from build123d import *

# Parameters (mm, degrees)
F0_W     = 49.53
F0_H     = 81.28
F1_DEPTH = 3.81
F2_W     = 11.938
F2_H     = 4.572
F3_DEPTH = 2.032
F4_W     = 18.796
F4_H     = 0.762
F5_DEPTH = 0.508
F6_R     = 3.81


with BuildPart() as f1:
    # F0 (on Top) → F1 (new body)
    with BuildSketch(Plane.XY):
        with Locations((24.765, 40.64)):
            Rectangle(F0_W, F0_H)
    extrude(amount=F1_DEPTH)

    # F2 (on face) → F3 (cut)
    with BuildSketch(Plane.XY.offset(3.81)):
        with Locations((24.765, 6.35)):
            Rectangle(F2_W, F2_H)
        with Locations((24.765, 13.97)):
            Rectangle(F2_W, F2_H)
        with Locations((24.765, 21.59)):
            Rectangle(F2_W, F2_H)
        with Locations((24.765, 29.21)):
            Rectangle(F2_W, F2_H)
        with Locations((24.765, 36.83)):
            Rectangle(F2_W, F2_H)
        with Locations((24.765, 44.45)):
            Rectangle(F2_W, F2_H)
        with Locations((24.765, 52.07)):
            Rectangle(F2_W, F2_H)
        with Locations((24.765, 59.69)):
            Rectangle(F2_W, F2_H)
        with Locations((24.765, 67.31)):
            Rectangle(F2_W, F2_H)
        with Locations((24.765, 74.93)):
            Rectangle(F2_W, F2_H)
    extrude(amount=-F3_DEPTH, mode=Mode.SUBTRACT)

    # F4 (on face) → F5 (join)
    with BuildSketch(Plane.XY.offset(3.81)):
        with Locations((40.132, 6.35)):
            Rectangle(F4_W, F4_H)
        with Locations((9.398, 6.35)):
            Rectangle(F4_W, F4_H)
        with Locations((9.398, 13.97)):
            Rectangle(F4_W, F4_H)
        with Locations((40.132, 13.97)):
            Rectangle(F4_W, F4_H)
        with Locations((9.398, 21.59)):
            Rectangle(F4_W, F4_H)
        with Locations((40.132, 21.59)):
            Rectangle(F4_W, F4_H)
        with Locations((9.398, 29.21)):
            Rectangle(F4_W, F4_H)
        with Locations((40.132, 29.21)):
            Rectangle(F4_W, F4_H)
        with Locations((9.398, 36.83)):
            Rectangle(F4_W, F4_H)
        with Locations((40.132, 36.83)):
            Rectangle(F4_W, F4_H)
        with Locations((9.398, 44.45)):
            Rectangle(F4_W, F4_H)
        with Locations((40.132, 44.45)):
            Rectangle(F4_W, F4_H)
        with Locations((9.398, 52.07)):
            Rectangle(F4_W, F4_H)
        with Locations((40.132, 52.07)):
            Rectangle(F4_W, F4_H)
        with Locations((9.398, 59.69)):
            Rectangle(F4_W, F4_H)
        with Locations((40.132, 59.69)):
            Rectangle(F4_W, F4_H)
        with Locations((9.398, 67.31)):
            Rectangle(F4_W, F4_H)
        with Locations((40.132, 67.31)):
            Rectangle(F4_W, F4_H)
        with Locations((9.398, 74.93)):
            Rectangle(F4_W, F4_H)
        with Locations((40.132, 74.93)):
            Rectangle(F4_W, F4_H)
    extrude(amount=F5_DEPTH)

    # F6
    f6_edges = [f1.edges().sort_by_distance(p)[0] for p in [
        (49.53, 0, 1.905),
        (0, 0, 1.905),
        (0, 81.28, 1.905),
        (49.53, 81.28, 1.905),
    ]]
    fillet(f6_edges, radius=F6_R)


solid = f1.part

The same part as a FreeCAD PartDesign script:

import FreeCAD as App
import Part
import Sketcher

V = App.Vector
Q = App.Units.Quantity


def edges_at(feature, points):
    """Names of the edges that pass closest to the given points."""
    edges = feature.Shape.Edges
    near = lambda p: min(range(len(edges)), key=lambda i: edges[i].distToShape(Part.Vertex(*p))[0])
    return sorted({f"Edge{near(p) + 1}" for p in points})


def add_polygon(sketch, points):
    """Adds a closed chain of lines whose ends are joined by coincident constraints."""
    first, n = sketch.GeometryCount, len(points)
    for a, b in zip(points, points[1:] + points[:1]):
        sketch.addGeometry(Part.LineSegment(App.Vector(*a, 0), App.Vector(*b, 0)), False)
    for i in range(n):
        sketch.addConstraint(Sketcher.Constraint("Coincident", first + i, 2, first + (i + 1) % n, 1))

doc = App.newDocument("Part")
body = doc.addObject("PartDesign::Body", "Body")

# Sketch on XY plane
sketch1 = doc.addObject("Sketcher::SketchObject", "Sketch")
body.addObject(sketch1)
sketch1.AttachmentSupport = (doc.XY_Plane, [""])
sketch1.MapMode = "FlatFace"
add_polygon(sketch1, [(0, 81), (0, 0), (50, 0), (50, 81)])  # lines 0-3
sketch1.addConstraint([
    Sketcher.Constraint("Vertical", 0),
    Sketcher.Constraint("Horizontal", 1),
    Sketcher.Constraint("Vertical", 2),
    Sketcher.Constraint("Horizontal", 3),
    Sketcher.Constraint("Coincident", 0, 2, -1, 1),
    Sketcher.Constraint("DistanceY", 0, 2, 0, 1, Q("3.2 in")),
    Sketcher.Constraint("DistanceX", 1, 1, 1, 2, Q("1.95 in")),
])
pad1 = doc.addObject("PartDesign::Pad", "Pad")
body.addObject(pad1)
pad1.Profile = sketch1
pad1.Length = Q("0.15 in")

# Sketch on XY plane
sketch2 = doc.addObject("Sketcher::SketchObject", "Sketch001")
body.addObject(sketch2)
sketch2.AttachmentSupport = (doc.XY_Plane, [""])
sketch2.MapMode = "FlatFace"
sketch2.AttachmentOffset = App.Placement(V(0, 0, 0.15 * 25.4), App.Rotation())
add_polygon(sketch2, [(18.8, 8.6), (18.8, 4.1), (30.7, 4.1), (30.7, 8.6)])  # lines 0-3
add_polygon(sketch2, [(18.8, 16.3), (18.8, 11.7), (30.7, 11.7), (30.7, 16.3)])  # lines 4-7
add_polygon(sketch2, [(18.8, 23.9), (18.8, 19.3), (30.7, 19.3), (30.7, 23.9)])  # lines 8-11
add_polygon(sketch2, [(18.8, 31.5), (18.8, 26.9), (30.7, 26.9), (30.7, 31.5)])  # lines 12-15
add_polygon(sketch2, [(18.8, 39.1), (18.8, 34.5), (30.7, 34.5), (30.7, 39.1)])  # lines 16-19
add_polygon(sketch2, [(18.8, 46.7), (18.8, 42.2), (30.7, 42.2), (30.7, 46.7)])  # lines 20-23
add_polygon(sketch2, [(18.8, 54.4), (18.8, 49.8), (30.7, 49.8), (30.7, 54.4)])  # lines 24-27
add_polygon(sketch2, [(18.8, 62), (18.8, 57.4), (30.7, 57.4), (30.7, 62)])  # lines 28-31
add_polygon(sketch2, [(18.8, 69.6), (18.8, 65), (30.7, 65), (30.7, 69.6)])  # lines 32-35
add_polygon(sketch2, [(18.8, 77.2), (18.8, 72.6), (30.7, 72.6), (30.7, 77.2)])  # lines 36-39
sketch2.addConstraint([
    Sketcher.Constraint("Vertical", 0),
    Sketcher.Constraint("Horizontal", 1),
    Sketcher.Constraint("Vertical", 2),
    Sketcher.Constraint("Horizontal", 3),
    Sketcher.Constraint("Vertical", 4),
    Sketcher.Constraint("Horizontal", 5),
    Sketcher.Constraint("Vertical", 6),
    Sketcher.Constraint("Horizontal", 7),
    Sketcher.Constraint("Vertical", 8),
    Sketcher.Constraint("Horizontal", 9),
    Sketcher.Constraint("Vertical", 10),
    Sketcher.Constraint("Horizontal", 11),
    Sketcher.Constraint("Vertical", 12),
    Sketcher.Constraint("Horizontal", 13),
    Sketcher.Constraint("Vertical", 14),
    Sketcher.Constraint("Horizontal", 15),
    Sketcher.Constraint("Vertical", 16),
    Sketcher.Constraint("Horizontal", 17),
    Sketcher.Constraint("Vertical", 18),
    Sketcher.Constraint("Horizontal", 19),
    Sketcher.Constraint("Vertical", 20),
    Sketcher.Constraint("Horizontal", 21),
    Sketcher.Constraint("Vertical", 22),
    Sketcher.Constraint("Horizontal", 23),
    Sketcher.Constraint("Vertical", 24),
    Sketcher.Constraint("Horizontal", 25),
    Sketcher.Constraint("Vertical", 26),
    Sketcher.Constraint("Horizontal", 27),
    Sketcher.Constraint("Vertical", 28),
    Sketcher.Constraint("Horizontal", 29),
    Sketcher.Constraint("Vertical", 30),
    Sketcher.Constraint("Horizontal", 31),
    Sketcher.Constraint("Vertical", 32),
    Sketcher.Constraint("Horizontal", 33),
    Sketcher.Constraint("Vertical", 34),
    Sketcher.Constraint("Horizontal", 35),
    Sketcher.Constraint("Vertical", 36),
    Sketcher.Constraint("Horizontal", 37),
    Sketcher.Constraint("Vertical", 38),
    Sketcher.Constraint("Horizontal", 39),
    Sketcher.Constraint("Vertical", 3, 2, 4, 2),
    Sketcher.Constraint("Vertical", 2, 2, 5, 2),
    Sketcher.Constraint("Vertical", 7, 2, 8, 2),
    Sketcher.Constraint("Vertical", 6, 2, 9, 2),
    Sketcher.Constraint("Vertical", 11, 2, 12, 2),
    Sketcher.Constraint("Vertical", 10, 2, 13, 2),
    Sketcher.Constraint("Vertical", 15, 2, 16, 2),
    Sketcher.Constraint("Vertical", 14, 2, 17, 2),
    Sketcher.Constraint("Vertical", 19, 2, 20, 2),
    Sketcher.Constraint("Vertical", 18, 2, 21, 2),
    Sketcher.Constraint("Vertical", 23, 2, 24, 2),
    Sketcher.Constraint("Vertical", 22, 2, 25, 2),
    Sketcher.Constraint("Vertical", 27, 2, 28, 2),
    Sketcher.Constraint("Vertical", 26, 2, 29, 2),
    Sketcher.Constraint("Vertical", 31, 2, 32, 2),
    Sketcher.Constraint("Vertical", 30, 2, 33, 2),
    Sketcher.Constraint("Vertical", 35, 2, 36, 2),
    Sketcher.Constraint("Vertical", 34, 2, 37, 2),
    Sketcher.Constraint("Equal", 2, 4),
    Sketcher.Constraint("Equal", 6, 8),
    Sketcher.Constraint("Equal", 10, 12),
    Sketcher.Constraint("Equal", 14, 16),
    Sketcher.Constraint("Equal", 18, 20),
    Sketcher.Constraint("Equal", 22, 24),
    Sketcher.Constraint("Equal", 26, 28),
    Sketcher.Constraint("Equal", 30, 32),
    Sketcher.Constraint("Equal", 34, 36),
    Sketcher.Constraint("DistanceX", 1, 1, 1, 2, Q("0.47 in")),
    Sketcher.Constraint("DistanceY", 0, 2, 0, 1, Q("0.18 in")),
    Sketcher.Constraint("DistanceY", 0, 2, 4, 2, Q("0.3 in")),
    Sketcher.Constraint("DistanceY", 4, 2, 8, 2, Q("0.3 in")),
    Sketcher.Constraint("DistanceY", 8, 2, 12, 2, Q("0.3 in")),
    Sketcher.Constraint("DistanceY", 12, 2, 16, 2, Q("0.3 in")),
    Sketcher.Constraint("DistanceY", 16, 2, 20, 2, Q("0.3 in")),
    Sketcher.Constraint("DistanceY", 20, 2, 24, 2, Q("0.3 in")),
    Sketcher.Constraint("DistanceY", 24, 2, 28, 2, Q("0.3 in")),
    Sketcher.Constraint("DistanceY", 28, 2, 32, 2, Q("0.3 in")),
    Sketcher.Constraint("DistanceY", 32, 2, 36, 2, Q("0.3 in")),
    Sketcher.Constraint("DistanceX", -1, 1, 0, 2, Q("0.74 in")),
    Sketcher.Constraint("DistanceY", -1, 1, 0, 2, Q("0.16 in")),
])
pocket1 = doc.addObject("PartDesign::Pocket", "Pocket")
body.addObject(pocket1)
pocket1.Profile = sketch2
pocket1.Length = Q("0.08 in")

# Sketch on XY plane
sketch3 = doc.addObject("Sketcher::SketchObject", "Sketch002")
body.addObject(sketch3)
sketch3.AttachmentSupport = (doc.XY_Plane, [""])
sketch3.MapMode = "FlatFace"
sketch3.AttachmentOffset = App.Placement(V(0, 0, 0.15 * 25.4), App.Rotation())
add_polygon(sketch3, [(30.7, 6.7), (30.7, 6), (49.5, 6), (49.5, 6.7)])  # lines 0-3
add_polygon(sketch3, [(0, 6.7), (0, 6), (18.8, 6), (18.8, 6.7)])  # lines 4-7
add_polygon(sketch3, [(0, 14.4), (0, 13.6), (18.8, 13.6), (18.8, 14.4)])  # lines 8-11
add_polygon(sketch3, [(30.7, 14.4), (30.7, 13.6), (49.5, 13.6), (49.5, 14.4)])  # lines 12-15
add_polygon(sketch3, [(0, 22), (0, 21.2), (18.8, 21.2), (18.8, 22)])  # lines 16-19
add_polygon(sketch3, [(30.7, 22), (30.7, 21.2), (49.5, 21.2), (49.5, 22)])  # lines 20-23
add_polygon(sketch3, [(0, 29.6), (0, 28.8), (18.8, 28.8), (18.8, 29.6)])  # lines 24-27
add_polygon(sketch3, [(30.7, 29.6), (30.7, 28.8), (49.5, 28.8), (49.5, 29.6)])  # lines 28-31
add_polygon(sketch3, [(0, 37.2), (0, 36.4), (18.8, 36.4), (18.8, 37.2)])  # lines 32-35
add_polygon(sketch3, [(30.7, 37.2), (30.7, 36.4), (49.5, 36.4), (49.5, 37.2)])  # lines 36-39
add_polygon(sketch3, [(0, 44.8), (0, 44.1), (18.8, 44.1), (18.8, 44.8)])  # lines 40-43
add_polygon(sketch3, [(30.7, 44.8), (30.7, 44.1), (49.5, 44.1), (49.5, 44.8)])  # lines 44-47
add_polygon(sketch3, [(0, 52.5), (0, 51.7), (18.8, 51.7), (18.8, 52.5)])  # lines 48-51
add_polygon(sketch3, [(30.7, 52.5), (30.7, 51.7), (49.5, 51.7), (49.5, 52.5)])  # lines 52-55
add_polygon(sketch3, [(0, 60.1), (0, 59.3), (18.8, 59.3), (18.8, 60.1)])  # lines 56-59
add_polygon(sketch3, [(30.7, 60.1), (30.7, 59.3), (49.5, 59.3), (49.5, 60.1)])  # lines 60-63
add_polygon(sketch3, [(0, 67.7), (0, 66.9), (18.8, 66.9), (18.8, 67.7)])  # lines 64-67
add_polygon(sketch3, [(30.7, 67.7), (30.7, 66.9), (49.5, 66.9), (49.5, 67.7)])  # lines 68-71
add_polygon(sketch3, [(0, 75.3), (0, 74.5), (18.8, 74.5), (18.8, 75.3)])  # lines 72-75
add_polygon(sketch3, [(30.7, 75.3), (30.7, 74.5), (49.5, 74.5), (49.5, 75.3)])  # lines 76-79
sketch3.addConstraint([
    Sketcher.Constraint("Vertical", 0),
    Sketcher.Constraint("Horizontal", 1),
    Sketcher.Constraint("Vertical", 2),
    Sketcher.Constraint("Horizontal", 3),
    Sketcher.Constraint("Vertical", 4),
    Sketcher.Constraint("Horizontal", 5),
    Sketcher.Constraint("Vertical", 6),
    Sketcher.Constraint("Horizontal", 7),
    Sketcher.Constraint("Vertical", 8),
    Sketcher.Constraint("Horizontal", 9),
    Sketcher.Constraint("Vertical", 10),
    Sketcher.Constraint("Horizontal", 11),
    Sketcher.Constraint("Vertical", 12),
    Sketcher.Constraint("Horizontal", 13),
    Sketcher.Constraint("Vertical", 14),
    Sketcher.Constraint("Horizontal", 15),
    Sketcher.Constraint("Vertical", 16),
    Sketcher.Constraint("Horizontal", 17),
    Sketcher.Constraint("Vertical", 18),
    Sketcher.Constraint("Horizontal", 19),
    Sketcher.Constraint("Vertical", 20),
    Sketcher.Constraint("Horizontal", 21),
    Sketcher.Constraint("Vertical", 22),
    Sketcher.Constraint("Horizontal", 23),
    Sketcher.Constraint("Vertical", 24),
    Sketcher.Constraint("Horizontal", 25),
    Sketcher.Constraint("Vertical", 26),
    Sketcher.Constraint("Horizontal", 27),
    Sketcher.Constraint("Vertical", 28),
    Sketcher.Constraint("Horizontal", 29),
    Sketcher.Constraint("Vertical", 30),
    Sketcher.Constraint("Horizontal", 31),
    Sketcher.Constraint("Vertical", 32),
    Sketcher.Constraint("Horizontal", 33),
    Sketcher.Constraint("Vertical", 34),
    Sketcher.Constraint("Horizontal", 35),
    Sketcher.Constraint("Vertical", 36),
    Sketcher.Constraint("Horizontal", 37),
    Sketcher.Constraint("Vertical", 38),
    Sketcher.Constraint("Horizontal", 39),
    Sketcher.Constraint("Vertical", 40),
    Sketcher.Constraint("Horizontal", 41),
    Sketcher.Constraint("Vertical", 42),
    Sketcher.Constraint("Horizontal", 43),
    Sketcher.Constraint("Vertical", 44),
    Sketcher.Constraint("Horizontal", 45),
    Sketcher.Constraint("Vertical", 46),
    Sketcher.Constraint("Horizontal", 47),
    Sketcher.Constraint("Vertical", 48),
    Sketcher.Constraint("Horizontal", 49),
    Sketcher.Constraint("Vertical", 50),
    Sketcher.Constraint("Horizontal", 51),
    Sketcher.Constraint("Vertical", 52),
    Sketcher.Constraint("Horizontal", 53),
    Sketcher.Constraint("Vertical", 54),
    Sketcher.Constraint("Horizontal", 55),
    Sketcher.Constraint("Vertical", 56),
    Sketcher.Constraint("Horizontal", 57),
    Sketcher.Constraint("Vertical", 58),
    Sketcher.Constraint("Horizontal", 59),
    Sketcher.Constraint("Vertical", 60),
    Sketcher.Constraint("Horizontal", 61),
    Sketcher.Constraint("Vertical", 62),
    Sketcher.Constraint("Horizontal", 63),
    Sketcher.Constraint("Vertical", 64),
    Sketcher.Constraint("Horizontal", 65),
    Sketcher.Constraint("Vertical", 66),
    Sketcher.Constraint("Horizontal", 67),
    Sketcher.Constraint("Vertical", 68),
    Sketcher.Constraint("Horizontal", 69),
    Sketcher.Constraint("Vertical", 70),
    Sketcher.Constraint("Horizontal", 71),
    Sketcher.Constraint("Vertical", 72),
    Sketcher.Constraint("Horizontal", 73),
    Sketcher.Constraint("Vertical", 74),
    Sketcher.Constraint("Horizontal", 75),
    Sketcher.Constraint("Vertical", 76),
    Sketcher.Constraint("Horizontal", 77),
    Sketcher.Constraint("Vertical", 78),
    Sketcher.Constraint("Horizontal", 79),
    Sketcher.Constraint("PointOnObject", 4, 2, -2),
    Sketcher.Constraint("PointOnObject", 8, 2, -2),
    Sketcher.Constraint("PointOnObject", 16, 2, -2),
    Sketcher.Constraint("PointOnObject", 24, 2, -2),
    Sketcher.Constraint("PointOnObject", 32, 2, -2),
    Sketcher.Constraint("PointOnObject", 40, 2, -2),
    Sketcher.Constraint("PointOnObject", 48, 2, -2),
    Sketcher.Constraint("PointOnObject", 56, 2, -2),
    Sketcher.Constraint("PointOnObject", 64, 2, -2),
    Sketcher.Constraint("PointOnObject", 72, 2, -2),
    Sketcher.Constraint("Horizontal", 1, 2, 4, 2),
    Sketcher.Constraint("Horizontal", 3, 2, 6, 2),
    Sketcher.Constraint("Horizontal", 9, 2, 12, 2),
    Sketcher.Constraint("Horizontal", 11, 2, 14, 2),
    Sketcher.Constraint("Horizontal", 17, 2, 20, 2),
    Sketcher.Constraint("Horizontal", 19, 2, 22, 2),
    Sketcher.Constraint("Horizontal", 25, 2, 28, 2),
    Sketcher.Constraint("Horizontal", 27, 2, 30, 2),
    Sketcher.Constraint("Horizontal", 33, 2, 36, 2),
    Sketcher.Constraint("Horizontal", 35, 2, 38, 2),
    Sketcher.Constraint("Horizontal", 41, 2, 44, 2),
    Sketcher.Constraint("Horizontal", 43, 2, 46, 2),
    Sketcher.Constraint("Horizontal", 49, 2, 52, 2),
    Sketcher.Constraint("Horizontal", 51, 2, 54, 2),
    Sketcher.Constraint("Horizontal", 57, 2, 60, 2),
    Sketcher.Constraint("Horizontal", 59, 2, 62, 2),
    Sketcher.Constraint("Horizontal", 65, 2, 68, 2),
    Sketcher.Constraint("Horizontal", 67, 2, 70, 2),
    Sketcher.Constraint("Horizontal", 73, 2, 76, 2),
    Sketcher.Constraint("Horizontal", 75, 2, 78, 2),
    Sketcher.Constraint("Vertical", 6, 2, 9, 2),
    Sketcher.Constraint("Vertical", 3, 2, 12, 2),
    Sketcher.Constraint("Vertical", 2, 2, 13, 2),
    Sketcher.Constraint("Vertical", 10, 2, 17, 2),
    Sketcher.Constraint("Vertical", 15, 2, 20, 2),
    Sketcher.Constraint("Vertical", 14, 2, 21, 2),
    Sketcher.Constraint("Vertical", 18, 2, 25, 2),
    Sketcher.Constraint("Vertical", 23, 2, 28, 2),
    Sketcher.Constraint("Vertical", 22, 2, 29, 2),
    Sketcher.Constraint("Vertical", 26, 2, 33, 2),
    Sketcher.Constraint("Vertical", 31, 2, 36, 2),
    Sketcher.Constraint("Vertical", 30, 2, 37, 2),
    Sketcher.Constraint("Vertical", 34, 2, 41, 2),
    Sketcher.Constraint("Vertical", 39, 2, 44, 2),
    Sketcher.Constraint("Vertical", 38, 2, 45, 2),
    Sketcher.Constraint("Vertical", 42, 2, 49, 2),
    Sketcher.Constraint("Vertical", 47, 2, 52, 2),
    Sketcher.Constraint("Vertical", 46, 2, 53, 2),
    Sketcher.Constraint("Vertical", 50, 2, 57, 2),
    Sketcher.Constraint("Vertical", 55, 2, 60, 2),
    Sketcher.Constraint("Vertical", 54, 2, 61, 2),
    Sketcher.Constraint("Vertical", 58, 2, 65, 2),
    Sketcher.Constraint("Vertical", 63, 2, 68, 2),
    Sketcher.Constraint("Vertical", 62, 2, 69, 2),
    Sketcher.Constraint("Vertical", 66, 2, 73, 2),
    Sketcher.Constraint("Vertical", 71, 2, 76, 2),
    Sketcher.Constraint("Vertical", 70, 2, 77, 2),
    Sketcher.Constraint("Equal", 3, 5),
    Sketcher.Constraint("Equal", 6, 8),
    Sketcher.Constraint("Equal", 14, 16),
    Sketcher.Constraint("Equal", 22, 24),
    Sketcher.Constraint("Equal", 30, 32),
    Sketcher.Constraint("Equal", 38, 40),
    Sketcher.Constraint("Equal", 46, 48),
    Sketcher.Constraint("Equal", 54, 56),
    Sketcher.Constraint("Equal", 62, 64),
    Sketcher.Constraint("Equal", 70, 72),
    Sketcher.Constraint("DistanceX", 1, 1, 1, 2, Q("0.74 in")),
    Sketcher.Constraint("DistanceY", 0, 2, 0, 1, Q("0.03 in")),
    Sketcher.Constraint("DistanceX", -1, 1, 0, 2, Q("1.21 in")),
    Sketcher.Constraint("DistanceY", -1, 1, 0, 2, Q("0.235 in")),
    Sketcher.Constraint("DistanceY", -1, 1, 8, 2, Q("0.535 in")),
    Sketcher.Constraint("DistanceY", -1, 1, 16, 2, Q("0.835 in")),
    Sketcher.Constraint("DistanceY", -1, 1, 24, 2, Q("1.135 in")),
    Sketcher.Constraint("DistanceY", -1, 1, 32, 2, Q("1.435 in")),
    Sketcher.Constraint("DistanceY", -1, 1, 40, 2, Q("1.735 in")),
    Sketcher.Constraint("DistanceY", -1, 1, 48, 2, Q("2.035 in")),
    Sketcher.Constraint("DistanceY", -1, 1, 56, 2, Q("2.335 in")),
    Sketcher.Constraint("DistanceY", -1, 1, 64, 2, Q("2.635 in")),
    Sketcher.Constraint("DistanceY", -1, 1, 72, 2, Q("2.935 in")),
])
pad2 = doc.addObject("PartDesign::Pad", "Pad001")
body.addObject(pad2)
pad2.Profile = sketch3
pad2.Length = Q("0.02 in")
doc.recompute()

fillet = doc.addObject("PartDesign::Fillet", "Fillet")
body.addObject(fillet)
fillet.Base = (pad2, edges_at(pad2, [
    (49.53, 0, 1.905),
    (0, 0, 1.905),
    (0, 81.28, 1.905),
    (49.53, 81.28, 1.905),
]))
fillet.Radius = Q("0.15 in")

doc.recompute()
